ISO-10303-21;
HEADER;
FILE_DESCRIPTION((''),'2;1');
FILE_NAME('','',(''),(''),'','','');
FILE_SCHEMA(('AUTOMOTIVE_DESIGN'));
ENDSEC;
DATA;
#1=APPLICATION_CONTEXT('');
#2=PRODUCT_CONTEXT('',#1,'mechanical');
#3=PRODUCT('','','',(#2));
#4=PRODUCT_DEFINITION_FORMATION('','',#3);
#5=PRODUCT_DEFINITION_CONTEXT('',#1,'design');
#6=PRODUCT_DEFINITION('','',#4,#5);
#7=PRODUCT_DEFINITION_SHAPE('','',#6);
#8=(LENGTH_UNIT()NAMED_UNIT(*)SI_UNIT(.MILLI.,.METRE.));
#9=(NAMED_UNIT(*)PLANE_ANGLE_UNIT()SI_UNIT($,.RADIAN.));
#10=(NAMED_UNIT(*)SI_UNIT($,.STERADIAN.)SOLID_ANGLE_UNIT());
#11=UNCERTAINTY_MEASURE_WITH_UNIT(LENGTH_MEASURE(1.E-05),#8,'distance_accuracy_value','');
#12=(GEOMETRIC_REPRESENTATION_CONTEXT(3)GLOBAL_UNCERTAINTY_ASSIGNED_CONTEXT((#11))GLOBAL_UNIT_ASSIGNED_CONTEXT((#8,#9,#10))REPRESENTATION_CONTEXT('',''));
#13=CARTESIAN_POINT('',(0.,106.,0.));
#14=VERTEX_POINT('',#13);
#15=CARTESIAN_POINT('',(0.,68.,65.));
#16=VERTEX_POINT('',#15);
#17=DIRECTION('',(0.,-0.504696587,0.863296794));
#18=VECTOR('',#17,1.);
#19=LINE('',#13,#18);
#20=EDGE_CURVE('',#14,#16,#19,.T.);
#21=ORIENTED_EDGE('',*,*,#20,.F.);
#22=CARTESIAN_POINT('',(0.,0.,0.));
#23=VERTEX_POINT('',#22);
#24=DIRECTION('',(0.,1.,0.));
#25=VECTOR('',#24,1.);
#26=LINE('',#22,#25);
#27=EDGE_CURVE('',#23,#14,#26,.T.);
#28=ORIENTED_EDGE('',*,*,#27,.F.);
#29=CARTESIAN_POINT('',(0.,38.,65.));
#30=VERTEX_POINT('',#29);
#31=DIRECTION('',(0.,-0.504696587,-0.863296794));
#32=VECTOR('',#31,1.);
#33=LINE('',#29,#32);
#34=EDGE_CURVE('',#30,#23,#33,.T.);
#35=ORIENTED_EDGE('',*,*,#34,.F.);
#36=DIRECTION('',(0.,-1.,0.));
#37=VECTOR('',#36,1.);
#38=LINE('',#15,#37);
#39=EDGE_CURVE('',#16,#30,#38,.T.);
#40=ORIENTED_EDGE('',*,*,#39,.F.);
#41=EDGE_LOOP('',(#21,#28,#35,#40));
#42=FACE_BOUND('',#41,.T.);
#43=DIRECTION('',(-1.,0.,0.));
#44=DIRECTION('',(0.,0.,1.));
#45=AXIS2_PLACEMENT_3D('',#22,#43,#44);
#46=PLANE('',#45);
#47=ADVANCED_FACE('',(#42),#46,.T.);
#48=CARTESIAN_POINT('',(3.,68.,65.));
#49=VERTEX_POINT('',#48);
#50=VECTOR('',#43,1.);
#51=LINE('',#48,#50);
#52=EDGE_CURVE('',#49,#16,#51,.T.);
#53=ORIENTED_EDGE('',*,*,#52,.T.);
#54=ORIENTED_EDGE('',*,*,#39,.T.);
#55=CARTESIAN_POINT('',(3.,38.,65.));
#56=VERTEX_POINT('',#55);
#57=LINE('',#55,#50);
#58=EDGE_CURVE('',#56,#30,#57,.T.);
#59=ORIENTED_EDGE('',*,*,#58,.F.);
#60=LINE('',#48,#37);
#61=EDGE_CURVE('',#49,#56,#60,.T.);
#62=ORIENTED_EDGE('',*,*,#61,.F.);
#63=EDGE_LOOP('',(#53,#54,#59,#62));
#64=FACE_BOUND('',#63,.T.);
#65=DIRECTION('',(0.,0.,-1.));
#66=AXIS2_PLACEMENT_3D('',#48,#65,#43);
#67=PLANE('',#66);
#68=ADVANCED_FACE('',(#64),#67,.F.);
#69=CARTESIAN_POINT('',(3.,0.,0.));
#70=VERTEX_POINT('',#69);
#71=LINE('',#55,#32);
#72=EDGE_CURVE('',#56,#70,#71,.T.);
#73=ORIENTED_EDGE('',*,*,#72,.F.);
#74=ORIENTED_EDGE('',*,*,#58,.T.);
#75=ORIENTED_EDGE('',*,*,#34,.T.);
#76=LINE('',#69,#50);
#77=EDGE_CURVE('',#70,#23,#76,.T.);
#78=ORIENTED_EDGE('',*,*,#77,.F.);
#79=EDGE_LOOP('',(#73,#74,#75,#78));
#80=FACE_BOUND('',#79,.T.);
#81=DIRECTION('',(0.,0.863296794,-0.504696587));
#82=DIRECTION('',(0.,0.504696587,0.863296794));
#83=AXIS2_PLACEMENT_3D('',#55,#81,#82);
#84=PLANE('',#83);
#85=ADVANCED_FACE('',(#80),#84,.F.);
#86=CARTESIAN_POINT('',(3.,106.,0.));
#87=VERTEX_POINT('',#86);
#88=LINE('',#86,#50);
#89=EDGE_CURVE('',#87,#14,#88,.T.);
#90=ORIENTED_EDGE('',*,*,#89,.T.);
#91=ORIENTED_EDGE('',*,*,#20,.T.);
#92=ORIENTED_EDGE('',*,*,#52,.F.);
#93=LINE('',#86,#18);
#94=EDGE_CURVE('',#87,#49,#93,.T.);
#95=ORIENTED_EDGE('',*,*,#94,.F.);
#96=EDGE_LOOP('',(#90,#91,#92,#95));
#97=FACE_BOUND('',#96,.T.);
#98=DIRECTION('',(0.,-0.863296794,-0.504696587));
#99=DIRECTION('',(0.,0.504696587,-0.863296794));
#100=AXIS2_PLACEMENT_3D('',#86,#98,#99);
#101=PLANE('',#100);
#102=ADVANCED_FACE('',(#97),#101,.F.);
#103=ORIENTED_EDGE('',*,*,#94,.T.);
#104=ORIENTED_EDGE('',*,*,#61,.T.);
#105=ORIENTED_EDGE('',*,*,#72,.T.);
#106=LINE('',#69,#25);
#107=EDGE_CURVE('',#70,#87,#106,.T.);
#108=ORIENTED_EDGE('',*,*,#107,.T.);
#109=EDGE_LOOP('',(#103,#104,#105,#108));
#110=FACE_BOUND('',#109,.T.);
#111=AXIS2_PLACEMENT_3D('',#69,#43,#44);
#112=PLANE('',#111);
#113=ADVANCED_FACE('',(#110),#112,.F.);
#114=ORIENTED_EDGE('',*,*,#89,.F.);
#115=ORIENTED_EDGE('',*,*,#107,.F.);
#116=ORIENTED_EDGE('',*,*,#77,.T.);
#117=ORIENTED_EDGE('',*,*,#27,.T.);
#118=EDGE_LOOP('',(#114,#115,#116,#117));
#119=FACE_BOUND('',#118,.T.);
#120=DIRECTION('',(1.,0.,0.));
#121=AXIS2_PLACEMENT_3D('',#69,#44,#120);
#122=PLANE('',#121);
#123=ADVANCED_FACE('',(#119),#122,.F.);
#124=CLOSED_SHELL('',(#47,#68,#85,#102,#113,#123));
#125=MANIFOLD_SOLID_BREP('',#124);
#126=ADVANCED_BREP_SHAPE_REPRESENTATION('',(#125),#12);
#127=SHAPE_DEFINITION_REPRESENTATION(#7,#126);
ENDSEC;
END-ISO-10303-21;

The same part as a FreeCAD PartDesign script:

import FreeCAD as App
import Part
import Sketcher
from FreeCAD import Vector
Q = App.Units.Quantity

doc = App.newDocument("Part")
body = doc.addObject("PartDesign::Body", "Body")

sketch1 = doc.addObject("Sketcher::SketchObject", "Sketch")
body.addObject(sketch1)
sketch1.AttachmentSupport = (doc.YZ_Plane, [""])
sketch1.MapMode = "FlatFace"
sketch1.addGeometry([
    Part.LineSegment(Vector(0, 0, 0), Vector(106, 0, 0)),
    Part.LineSegment(Vector(106, 0, 0), Vector(68, 65, 0)),
    Part.LineSegment(Vector(68, 65, 0), Vector(38, 65, 0)),
    Part.LineSegment(Vector(38, 65, 0), Vector(0, 0, 0)),
], False)
sketch1.addConstraint([
    Sketcher.Constraint("Coincident", 0, 2, 1, 1),
    Sketcher.Constraint("Coincident", 1, 2, 2, 1),
    Sketcher.Constraint("Coincident", 2, 2, 3, 1),
    Sketcher.Constraint("Coincident", 3, 2, 0, 1),
    Sketcher.Constraint("Horizontal", 0),
    Sketcher.Constraint("Horizontal", 2),
    Sketcher.Constraint("Coincident", 3, 2, -1, 1),
    Sketcher.Constraint("Equal", 1, 3),
    Sketcher.Constraint("DistanceX", 0, 1, 0, 2, Q("106 mm")),
    Sketcher.Constraint("DistanceX", 2, 2, 2, 1, Q("30 mm")),
    Sketcher.Constraint("DistanceY", -1, 1, 1, 2, Q("65 mm")),
])
pad1 = doc.addObject("PartDesign::Pad", "Pad")
body.addObject(pad1)
pad1.Profile = sketch1
pad1.Length = 3

doc.recompute()
